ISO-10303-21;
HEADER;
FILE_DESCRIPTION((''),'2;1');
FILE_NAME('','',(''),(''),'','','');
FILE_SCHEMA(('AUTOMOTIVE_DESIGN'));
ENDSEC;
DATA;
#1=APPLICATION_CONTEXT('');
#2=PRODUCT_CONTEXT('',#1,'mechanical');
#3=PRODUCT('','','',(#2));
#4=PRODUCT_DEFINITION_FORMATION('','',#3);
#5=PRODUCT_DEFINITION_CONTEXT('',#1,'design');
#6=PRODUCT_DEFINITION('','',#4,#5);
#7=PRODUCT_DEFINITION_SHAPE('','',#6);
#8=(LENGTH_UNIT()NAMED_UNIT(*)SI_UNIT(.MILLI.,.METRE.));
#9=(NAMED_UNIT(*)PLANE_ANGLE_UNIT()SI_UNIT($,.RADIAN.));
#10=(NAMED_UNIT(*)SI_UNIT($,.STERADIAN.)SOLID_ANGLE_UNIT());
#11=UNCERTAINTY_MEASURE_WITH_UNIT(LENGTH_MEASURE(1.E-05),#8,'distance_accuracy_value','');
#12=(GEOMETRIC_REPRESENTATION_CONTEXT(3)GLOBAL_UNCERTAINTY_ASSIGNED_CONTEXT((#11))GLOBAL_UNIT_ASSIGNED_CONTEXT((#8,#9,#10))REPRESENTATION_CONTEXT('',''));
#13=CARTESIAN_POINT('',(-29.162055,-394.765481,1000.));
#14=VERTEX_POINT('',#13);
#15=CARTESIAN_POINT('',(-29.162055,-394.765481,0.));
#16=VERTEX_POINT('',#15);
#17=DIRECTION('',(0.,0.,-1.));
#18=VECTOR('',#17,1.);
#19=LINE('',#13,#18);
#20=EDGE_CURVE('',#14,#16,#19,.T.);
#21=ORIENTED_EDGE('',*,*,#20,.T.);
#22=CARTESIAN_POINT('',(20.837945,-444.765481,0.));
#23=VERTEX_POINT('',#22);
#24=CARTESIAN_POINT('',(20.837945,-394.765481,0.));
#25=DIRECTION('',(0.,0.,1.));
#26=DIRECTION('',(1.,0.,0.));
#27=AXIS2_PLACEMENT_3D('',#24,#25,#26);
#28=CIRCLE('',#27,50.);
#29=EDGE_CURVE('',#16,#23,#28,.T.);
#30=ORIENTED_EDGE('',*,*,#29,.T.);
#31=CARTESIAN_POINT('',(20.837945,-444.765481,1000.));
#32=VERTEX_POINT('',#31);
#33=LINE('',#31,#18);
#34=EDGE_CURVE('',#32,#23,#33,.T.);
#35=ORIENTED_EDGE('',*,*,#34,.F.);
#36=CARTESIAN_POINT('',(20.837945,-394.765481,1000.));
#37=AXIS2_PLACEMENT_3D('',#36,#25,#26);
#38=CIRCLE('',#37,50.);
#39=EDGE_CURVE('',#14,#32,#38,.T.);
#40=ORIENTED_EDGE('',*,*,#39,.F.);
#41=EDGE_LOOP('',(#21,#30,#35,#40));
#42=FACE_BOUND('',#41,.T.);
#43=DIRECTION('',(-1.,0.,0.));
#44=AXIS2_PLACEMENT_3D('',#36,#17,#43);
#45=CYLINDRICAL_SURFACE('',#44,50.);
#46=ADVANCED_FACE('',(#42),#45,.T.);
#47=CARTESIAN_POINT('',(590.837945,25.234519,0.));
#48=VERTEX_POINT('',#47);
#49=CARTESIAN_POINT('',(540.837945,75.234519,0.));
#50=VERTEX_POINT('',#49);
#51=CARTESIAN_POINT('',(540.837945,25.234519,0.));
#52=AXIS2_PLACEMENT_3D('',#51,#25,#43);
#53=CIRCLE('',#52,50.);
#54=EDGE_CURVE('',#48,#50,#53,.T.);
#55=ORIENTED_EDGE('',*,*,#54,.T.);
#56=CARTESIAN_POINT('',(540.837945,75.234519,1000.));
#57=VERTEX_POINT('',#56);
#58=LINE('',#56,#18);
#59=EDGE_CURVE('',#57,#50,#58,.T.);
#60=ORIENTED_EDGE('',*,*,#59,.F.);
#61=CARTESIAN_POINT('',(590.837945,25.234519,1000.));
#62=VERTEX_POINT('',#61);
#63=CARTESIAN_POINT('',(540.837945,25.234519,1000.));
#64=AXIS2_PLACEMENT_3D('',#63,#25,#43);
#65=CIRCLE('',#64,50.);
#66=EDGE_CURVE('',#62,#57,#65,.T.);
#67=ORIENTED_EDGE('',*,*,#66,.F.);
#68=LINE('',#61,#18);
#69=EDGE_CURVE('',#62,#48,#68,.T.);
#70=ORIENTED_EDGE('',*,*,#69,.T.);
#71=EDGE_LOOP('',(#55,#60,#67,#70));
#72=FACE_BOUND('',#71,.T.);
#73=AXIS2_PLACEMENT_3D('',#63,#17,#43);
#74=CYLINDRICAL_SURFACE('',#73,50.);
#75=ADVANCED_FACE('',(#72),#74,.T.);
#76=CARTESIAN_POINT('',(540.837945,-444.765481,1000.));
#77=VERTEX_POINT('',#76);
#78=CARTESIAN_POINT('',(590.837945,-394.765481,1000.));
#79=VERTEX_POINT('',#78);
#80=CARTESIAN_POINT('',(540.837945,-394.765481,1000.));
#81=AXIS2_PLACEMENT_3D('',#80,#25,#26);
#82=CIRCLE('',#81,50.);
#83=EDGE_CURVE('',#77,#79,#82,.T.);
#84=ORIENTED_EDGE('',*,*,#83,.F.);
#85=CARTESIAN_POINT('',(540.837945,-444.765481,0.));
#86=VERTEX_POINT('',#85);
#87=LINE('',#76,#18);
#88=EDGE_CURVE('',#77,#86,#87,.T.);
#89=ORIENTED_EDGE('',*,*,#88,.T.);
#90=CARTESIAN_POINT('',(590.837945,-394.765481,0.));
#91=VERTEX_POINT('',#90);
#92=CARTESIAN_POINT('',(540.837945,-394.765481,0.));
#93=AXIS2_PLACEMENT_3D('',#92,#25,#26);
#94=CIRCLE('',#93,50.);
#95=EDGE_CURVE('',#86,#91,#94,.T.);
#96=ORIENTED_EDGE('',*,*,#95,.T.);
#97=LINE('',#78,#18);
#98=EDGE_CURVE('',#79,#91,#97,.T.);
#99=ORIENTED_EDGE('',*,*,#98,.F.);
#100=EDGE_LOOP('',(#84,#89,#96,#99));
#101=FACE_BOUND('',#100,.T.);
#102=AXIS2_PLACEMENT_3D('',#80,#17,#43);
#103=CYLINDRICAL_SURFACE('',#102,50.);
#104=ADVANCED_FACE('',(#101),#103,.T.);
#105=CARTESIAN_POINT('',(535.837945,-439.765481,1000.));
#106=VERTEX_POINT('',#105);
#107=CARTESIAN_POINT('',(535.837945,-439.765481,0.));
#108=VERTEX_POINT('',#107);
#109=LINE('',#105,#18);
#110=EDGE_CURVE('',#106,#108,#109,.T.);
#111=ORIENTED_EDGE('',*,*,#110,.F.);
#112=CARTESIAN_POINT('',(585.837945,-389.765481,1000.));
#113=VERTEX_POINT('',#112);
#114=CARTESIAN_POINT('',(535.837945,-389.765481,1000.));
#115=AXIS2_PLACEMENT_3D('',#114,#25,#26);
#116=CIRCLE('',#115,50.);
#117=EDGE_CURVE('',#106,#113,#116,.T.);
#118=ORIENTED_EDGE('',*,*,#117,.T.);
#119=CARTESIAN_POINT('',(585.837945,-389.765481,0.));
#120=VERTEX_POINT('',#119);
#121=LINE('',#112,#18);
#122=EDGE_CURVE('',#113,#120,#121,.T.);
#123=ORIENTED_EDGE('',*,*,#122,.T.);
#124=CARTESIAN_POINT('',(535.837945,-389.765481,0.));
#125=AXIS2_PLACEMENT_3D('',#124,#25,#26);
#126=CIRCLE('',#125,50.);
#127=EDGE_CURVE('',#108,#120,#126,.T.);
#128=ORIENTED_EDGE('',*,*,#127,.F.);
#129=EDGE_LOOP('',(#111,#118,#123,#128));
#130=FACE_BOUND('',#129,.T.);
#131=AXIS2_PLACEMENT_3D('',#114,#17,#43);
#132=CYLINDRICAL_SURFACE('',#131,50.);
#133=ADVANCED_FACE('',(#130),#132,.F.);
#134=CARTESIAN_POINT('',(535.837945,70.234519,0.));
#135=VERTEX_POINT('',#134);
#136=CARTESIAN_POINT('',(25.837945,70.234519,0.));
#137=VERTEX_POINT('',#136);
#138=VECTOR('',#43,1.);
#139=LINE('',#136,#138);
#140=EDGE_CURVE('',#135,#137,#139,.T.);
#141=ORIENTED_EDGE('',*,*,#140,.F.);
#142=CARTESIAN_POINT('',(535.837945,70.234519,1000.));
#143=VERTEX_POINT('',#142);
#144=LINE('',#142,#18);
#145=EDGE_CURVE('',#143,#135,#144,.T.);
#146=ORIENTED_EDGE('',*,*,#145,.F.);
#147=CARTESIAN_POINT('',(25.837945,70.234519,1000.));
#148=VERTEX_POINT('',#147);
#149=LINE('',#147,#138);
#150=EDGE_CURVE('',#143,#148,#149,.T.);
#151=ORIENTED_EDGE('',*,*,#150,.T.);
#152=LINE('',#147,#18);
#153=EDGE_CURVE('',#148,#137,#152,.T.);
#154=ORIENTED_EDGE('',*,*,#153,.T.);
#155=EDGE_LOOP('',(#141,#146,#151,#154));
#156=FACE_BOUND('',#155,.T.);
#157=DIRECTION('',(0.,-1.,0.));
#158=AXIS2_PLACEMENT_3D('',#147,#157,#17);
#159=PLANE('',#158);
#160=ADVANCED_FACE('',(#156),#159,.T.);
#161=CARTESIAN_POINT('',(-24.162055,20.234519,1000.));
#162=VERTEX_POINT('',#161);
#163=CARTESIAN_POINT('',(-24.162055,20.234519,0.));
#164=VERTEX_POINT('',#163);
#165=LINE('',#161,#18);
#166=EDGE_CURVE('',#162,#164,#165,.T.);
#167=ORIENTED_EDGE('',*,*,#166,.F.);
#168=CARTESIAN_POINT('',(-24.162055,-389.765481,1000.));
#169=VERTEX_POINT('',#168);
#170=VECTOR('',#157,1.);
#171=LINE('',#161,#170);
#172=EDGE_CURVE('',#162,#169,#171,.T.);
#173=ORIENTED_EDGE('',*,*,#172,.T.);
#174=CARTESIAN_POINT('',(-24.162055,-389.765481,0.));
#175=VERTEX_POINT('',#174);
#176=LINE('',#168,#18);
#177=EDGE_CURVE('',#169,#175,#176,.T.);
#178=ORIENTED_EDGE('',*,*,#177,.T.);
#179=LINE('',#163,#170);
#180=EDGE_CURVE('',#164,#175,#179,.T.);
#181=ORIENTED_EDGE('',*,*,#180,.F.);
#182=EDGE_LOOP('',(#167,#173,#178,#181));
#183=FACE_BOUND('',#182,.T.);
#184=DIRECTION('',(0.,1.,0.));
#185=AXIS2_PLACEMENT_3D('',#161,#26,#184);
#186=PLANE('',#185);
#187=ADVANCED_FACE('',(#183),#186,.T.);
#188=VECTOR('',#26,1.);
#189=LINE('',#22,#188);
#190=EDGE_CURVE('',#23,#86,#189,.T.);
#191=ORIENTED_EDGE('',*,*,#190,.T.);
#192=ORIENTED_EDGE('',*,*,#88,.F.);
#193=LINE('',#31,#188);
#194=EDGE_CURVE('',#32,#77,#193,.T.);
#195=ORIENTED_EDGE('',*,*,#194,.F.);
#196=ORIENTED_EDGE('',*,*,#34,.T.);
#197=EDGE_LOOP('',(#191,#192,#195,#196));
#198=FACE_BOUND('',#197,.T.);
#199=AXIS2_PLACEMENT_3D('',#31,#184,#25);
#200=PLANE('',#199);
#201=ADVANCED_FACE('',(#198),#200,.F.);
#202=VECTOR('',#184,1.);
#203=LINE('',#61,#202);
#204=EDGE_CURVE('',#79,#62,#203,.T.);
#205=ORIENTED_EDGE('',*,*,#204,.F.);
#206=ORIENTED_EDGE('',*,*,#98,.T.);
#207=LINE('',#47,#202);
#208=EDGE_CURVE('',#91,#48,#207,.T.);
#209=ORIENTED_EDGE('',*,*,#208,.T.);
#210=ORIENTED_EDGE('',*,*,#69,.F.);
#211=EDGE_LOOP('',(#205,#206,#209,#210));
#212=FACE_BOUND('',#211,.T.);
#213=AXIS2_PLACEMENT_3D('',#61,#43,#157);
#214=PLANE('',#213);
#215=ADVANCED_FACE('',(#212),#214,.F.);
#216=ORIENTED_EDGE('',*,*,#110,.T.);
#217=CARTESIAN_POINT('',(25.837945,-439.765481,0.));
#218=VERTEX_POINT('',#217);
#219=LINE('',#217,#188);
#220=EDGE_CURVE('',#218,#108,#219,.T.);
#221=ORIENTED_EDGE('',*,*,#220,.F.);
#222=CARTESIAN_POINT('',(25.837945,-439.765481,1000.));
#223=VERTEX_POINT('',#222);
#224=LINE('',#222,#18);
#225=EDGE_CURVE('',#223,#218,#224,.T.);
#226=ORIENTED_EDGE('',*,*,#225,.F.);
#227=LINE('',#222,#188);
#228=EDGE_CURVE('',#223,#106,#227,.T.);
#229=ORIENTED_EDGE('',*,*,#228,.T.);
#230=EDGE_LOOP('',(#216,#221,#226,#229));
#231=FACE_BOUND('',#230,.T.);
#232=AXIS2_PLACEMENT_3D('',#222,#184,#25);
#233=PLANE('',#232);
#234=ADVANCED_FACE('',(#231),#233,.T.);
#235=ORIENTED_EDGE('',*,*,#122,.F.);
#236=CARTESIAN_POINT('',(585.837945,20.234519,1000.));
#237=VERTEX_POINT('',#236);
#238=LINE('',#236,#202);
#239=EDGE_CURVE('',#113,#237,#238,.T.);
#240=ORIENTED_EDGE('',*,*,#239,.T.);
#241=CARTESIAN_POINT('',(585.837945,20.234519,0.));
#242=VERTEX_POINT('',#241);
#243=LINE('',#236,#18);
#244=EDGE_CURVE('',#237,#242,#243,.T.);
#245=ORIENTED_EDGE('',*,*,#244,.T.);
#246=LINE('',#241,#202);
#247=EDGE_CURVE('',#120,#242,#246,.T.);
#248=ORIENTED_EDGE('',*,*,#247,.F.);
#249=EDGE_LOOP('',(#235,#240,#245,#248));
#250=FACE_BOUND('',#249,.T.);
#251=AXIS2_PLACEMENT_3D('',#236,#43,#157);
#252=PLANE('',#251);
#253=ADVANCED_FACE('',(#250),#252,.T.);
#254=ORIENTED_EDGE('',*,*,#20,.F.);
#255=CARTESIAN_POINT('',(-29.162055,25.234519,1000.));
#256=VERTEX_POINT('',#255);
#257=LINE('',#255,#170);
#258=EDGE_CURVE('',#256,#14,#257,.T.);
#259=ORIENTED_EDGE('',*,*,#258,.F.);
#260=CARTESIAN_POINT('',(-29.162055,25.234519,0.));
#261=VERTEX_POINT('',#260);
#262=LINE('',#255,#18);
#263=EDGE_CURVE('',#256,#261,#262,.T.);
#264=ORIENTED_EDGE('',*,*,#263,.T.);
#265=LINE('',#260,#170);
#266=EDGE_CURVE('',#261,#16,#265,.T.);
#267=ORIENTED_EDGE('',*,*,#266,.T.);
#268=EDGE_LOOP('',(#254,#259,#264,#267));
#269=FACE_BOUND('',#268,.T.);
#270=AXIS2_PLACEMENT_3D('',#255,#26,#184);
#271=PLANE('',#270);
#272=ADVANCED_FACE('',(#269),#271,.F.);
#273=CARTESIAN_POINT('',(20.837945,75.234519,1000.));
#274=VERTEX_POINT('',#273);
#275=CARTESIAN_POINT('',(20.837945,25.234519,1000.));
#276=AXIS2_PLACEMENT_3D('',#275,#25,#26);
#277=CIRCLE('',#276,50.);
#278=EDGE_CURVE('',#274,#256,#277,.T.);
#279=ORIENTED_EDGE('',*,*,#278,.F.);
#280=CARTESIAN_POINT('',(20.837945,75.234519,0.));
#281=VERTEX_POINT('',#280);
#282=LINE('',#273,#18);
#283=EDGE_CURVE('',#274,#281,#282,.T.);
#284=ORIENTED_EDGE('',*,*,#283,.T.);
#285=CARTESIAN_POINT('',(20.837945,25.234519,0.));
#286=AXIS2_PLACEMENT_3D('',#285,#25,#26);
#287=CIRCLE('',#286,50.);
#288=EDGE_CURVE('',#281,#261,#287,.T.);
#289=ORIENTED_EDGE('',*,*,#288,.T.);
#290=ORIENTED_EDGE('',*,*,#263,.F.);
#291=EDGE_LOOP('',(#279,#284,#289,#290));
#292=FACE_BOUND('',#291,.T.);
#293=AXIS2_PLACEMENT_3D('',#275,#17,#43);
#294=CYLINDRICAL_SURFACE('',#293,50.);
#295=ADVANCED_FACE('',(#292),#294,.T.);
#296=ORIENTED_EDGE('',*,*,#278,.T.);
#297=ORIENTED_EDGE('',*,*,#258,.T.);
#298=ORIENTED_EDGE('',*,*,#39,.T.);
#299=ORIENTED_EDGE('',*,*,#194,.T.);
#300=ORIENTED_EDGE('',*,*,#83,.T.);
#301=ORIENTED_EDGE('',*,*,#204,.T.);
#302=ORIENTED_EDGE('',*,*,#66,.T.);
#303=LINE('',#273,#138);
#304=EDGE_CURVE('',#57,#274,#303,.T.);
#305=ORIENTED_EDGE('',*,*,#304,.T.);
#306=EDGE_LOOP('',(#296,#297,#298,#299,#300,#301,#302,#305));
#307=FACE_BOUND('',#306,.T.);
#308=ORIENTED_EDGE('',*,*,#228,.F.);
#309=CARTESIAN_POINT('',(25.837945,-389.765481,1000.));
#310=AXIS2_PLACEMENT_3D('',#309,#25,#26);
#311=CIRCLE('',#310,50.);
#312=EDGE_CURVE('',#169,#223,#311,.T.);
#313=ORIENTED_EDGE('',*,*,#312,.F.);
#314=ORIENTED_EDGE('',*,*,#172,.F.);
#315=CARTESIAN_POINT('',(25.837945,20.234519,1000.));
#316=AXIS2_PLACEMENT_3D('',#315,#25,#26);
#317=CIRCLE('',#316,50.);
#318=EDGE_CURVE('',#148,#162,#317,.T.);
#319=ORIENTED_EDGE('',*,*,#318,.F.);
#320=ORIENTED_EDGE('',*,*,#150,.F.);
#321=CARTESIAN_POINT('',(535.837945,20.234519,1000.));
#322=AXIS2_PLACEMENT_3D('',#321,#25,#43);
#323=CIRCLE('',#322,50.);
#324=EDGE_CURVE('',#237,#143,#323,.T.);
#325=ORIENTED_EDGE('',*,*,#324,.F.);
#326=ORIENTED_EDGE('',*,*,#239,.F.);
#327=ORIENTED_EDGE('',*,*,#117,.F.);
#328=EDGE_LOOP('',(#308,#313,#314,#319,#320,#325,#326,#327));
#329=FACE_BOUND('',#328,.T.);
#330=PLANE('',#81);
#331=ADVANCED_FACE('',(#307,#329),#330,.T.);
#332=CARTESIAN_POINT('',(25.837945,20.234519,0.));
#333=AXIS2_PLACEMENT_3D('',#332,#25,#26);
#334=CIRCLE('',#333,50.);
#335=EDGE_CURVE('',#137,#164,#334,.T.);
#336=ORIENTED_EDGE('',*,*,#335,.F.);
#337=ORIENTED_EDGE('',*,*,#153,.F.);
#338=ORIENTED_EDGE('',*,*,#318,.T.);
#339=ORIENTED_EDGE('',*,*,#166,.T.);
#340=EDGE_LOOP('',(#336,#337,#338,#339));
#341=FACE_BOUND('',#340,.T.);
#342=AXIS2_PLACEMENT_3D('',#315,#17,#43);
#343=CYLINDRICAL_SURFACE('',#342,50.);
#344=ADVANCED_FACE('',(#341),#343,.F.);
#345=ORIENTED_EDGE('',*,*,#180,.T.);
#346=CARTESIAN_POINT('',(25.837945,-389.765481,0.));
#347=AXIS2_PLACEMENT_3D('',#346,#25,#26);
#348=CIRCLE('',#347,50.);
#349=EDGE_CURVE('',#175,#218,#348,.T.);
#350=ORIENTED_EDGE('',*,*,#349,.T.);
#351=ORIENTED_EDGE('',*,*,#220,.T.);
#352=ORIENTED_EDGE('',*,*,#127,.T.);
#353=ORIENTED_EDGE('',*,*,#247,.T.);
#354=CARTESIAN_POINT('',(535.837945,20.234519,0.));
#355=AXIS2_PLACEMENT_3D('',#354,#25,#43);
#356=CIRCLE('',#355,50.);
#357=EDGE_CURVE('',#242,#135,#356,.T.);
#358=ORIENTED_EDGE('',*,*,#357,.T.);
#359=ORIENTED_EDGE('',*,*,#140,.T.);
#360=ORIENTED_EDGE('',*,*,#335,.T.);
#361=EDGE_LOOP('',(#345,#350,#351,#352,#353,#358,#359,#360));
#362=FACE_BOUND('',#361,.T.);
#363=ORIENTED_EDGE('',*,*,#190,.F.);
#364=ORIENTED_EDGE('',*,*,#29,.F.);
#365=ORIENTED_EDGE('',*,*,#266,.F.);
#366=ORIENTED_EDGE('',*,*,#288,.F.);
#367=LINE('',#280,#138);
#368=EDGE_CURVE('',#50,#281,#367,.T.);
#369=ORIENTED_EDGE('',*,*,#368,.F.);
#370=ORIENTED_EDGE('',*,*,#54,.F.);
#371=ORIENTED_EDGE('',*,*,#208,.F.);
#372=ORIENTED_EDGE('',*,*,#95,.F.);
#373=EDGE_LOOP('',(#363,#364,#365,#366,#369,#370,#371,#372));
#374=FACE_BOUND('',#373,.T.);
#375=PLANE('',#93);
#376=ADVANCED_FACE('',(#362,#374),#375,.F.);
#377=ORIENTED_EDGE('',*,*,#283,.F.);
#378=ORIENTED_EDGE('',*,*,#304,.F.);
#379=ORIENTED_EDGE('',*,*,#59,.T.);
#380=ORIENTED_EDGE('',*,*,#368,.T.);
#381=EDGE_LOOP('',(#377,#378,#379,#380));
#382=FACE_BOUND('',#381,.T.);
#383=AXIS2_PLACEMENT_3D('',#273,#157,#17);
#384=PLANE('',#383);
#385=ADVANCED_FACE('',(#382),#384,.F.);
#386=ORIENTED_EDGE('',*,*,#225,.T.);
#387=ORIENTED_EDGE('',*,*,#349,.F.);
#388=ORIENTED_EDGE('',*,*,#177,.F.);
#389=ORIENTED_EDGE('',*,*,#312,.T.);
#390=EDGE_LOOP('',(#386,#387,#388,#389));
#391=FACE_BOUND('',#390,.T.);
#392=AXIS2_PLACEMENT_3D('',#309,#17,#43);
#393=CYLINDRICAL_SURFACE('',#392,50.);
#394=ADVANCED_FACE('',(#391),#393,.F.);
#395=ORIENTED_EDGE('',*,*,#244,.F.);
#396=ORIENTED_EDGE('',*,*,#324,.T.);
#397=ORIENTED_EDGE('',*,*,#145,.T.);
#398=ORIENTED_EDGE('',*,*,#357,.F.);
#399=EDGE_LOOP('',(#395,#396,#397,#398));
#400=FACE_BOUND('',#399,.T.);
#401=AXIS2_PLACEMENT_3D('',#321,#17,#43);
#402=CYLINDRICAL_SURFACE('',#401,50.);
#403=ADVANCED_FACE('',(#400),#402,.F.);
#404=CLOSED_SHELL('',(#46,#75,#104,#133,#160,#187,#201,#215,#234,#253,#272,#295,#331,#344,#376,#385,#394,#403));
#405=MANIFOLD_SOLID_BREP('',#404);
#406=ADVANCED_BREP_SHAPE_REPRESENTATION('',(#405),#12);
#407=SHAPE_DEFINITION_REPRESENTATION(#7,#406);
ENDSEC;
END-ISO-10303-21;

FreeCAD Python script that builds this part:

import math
import FreeCAD as App
import Part
import Sketcher

V = App.Vector
Q = App.Units.Quantity

doc = App.newDocument("Part")
body = doc.addObject("PartDesign::Body", "Body")

# Sketch on XY plane
sketch1 = body.newObject("Sketcher::SketchObject", "Sketch")
sketch1.AttachmentSupport = (doc.getObject("XY_Plane"), [""])
sketch1.MapMode = "FlatFace"
sketch1.addGeometry(Part.LineSegment(V(541, 75, 0), V(21, 75, 0)), False)
sketch1.addGeometry(Part.ArcOfCircle(Part.Circle(V(21, 25, 0), V(0, 0, 1), 50), math.radians(90), math.radians(180)), False)
sketch1.addGeometry(Part.LineSegment(V(-29, 25, 0), V(-29, -395, 0)), False)
sketch1.addGeometry(Part.ArcOfCircle(Part.Circle(V(21, -395, 0), V(0, 0, 1), 50), math.radians(-180), math.radians(-90)), False)
sketch1.addGeometry(Part.LineSegment(V(21, -445, 0), V(541, -445, 0)), False)
sketch1.addGeometry(Part.ArcOfCircle(Part.Circle(V(541, -395, 0), V(0, 0, 1), 50), math.radians(-90), math.radians(0)), False)
sketch1.addGeometry(Part.LineSegment(V(591, -395, 0), V(591, 25, 0)), False)
sketch1.addGeometry(Part.ArcOfCircle(Part.Circle(V(541, 25, 0), V(0, 0, 1), 50), math.radians(0), math.radians(90)), False)
sketch1.addGeometry(Part.LineSegment(V(26, 70, 0), V(536, 70, 0)), False)
sketch1.addGeometry(Part.ArcOfCircle(Part.Circle(V(536, 20, 0), V(0, 0, 1), 50), math.radians(0), math.radians(90)), False)
sketch1.addGeometry(Part.LineSegment(V(586, 20, 0), V(586, -390, 0)), False)
sketch1.addGeometry(Part.ArcOfCircle(Part.Circle(V(536, -390, 0), V(0, 0, 1), 50), math.radians(-90), math.radians(0)), False)
sketch1.addGeometry(Part.LineSegment(V(536, -440, 0), V(26, -440, 0)), False)
sketch1.addGeometry(Part.ArcOfCircle(Part.Circle(V(26, -390, 0), V(0, 0, 1), 50), math.radians(-180), math.radians(-90)), False)
sketch1.addGeometry(Part.LineSegment(V(-24, -390, 0), V(-24, 20, 0)), False)
sketch1.addGeometry(Part.ArcOfCircle(Part.Circle(V(26, 20, 0), V(0, 0, 1), 50), math.radians(90), math.radians(180)), False)
sketch1.addConstraint(Sketcher.Constraint("Tangent", 0, 2, 1, 1))
sketch1.addConstraint(Sketcher.Constraint("Tangent", 1, 2, 2, 1))
sketch1.addConstraint(Sketcher.Constraint("Tangent", 2, 2, 3, 1))
sketch1.addConstraint(Sketcher.Constraint("Tangent", 3, 2, 4, 1))
sketch1.addConstraint(Sketcher.Constraint("Tangent", 4, 2, 5, 1))
sketch1.addConstraint(Sketcher.Constraint("Tangent", 5, 2, 6, 1))
sketch1.addConstraint(Sketcher.Constraint("Tangent", 6, 2, 7, 1))
sketch1.addConstraint(Sketcher.Constraint("Tangent", 7, 2, 0, 1))
sketch1.addConstraint(Sketcher.Constraint("Tangent", 8, 2, 9, 2))
sketch1.addConstraint(Sketcher.Constraint("Tangent", 9, 1, 10, 1))
sketch1.addConstraint(Sketcher.Constraint("Tangent", 10, 2, 11, 2))
sketch1.addConstraint(Sketcher.Constraint("Tangent", 11, 1, 12, 1))
sketch1.addConstraint(Sketcher.Constraint("Tangent", 12, 2, 13, 2))
sketch1.addConstraint(Sketcher.Constraint("Tangent", 13, 1, 14, 1))
sketch1.addConstraint(Sketcher.Constraint("Tangent", 14, 2, 15, 2))
sketch1.addConstraint(Sketcher.Constraint("Tangent", 15, 1, 8, 1))
sketch1.addConstraint(Sketcher.Constraint("Horizontal", 0))
sketch1.addConstraint(Sketcher.Constraint("Vertical", 2))
sketch1.addConstraint(Sketcher.Constraint("Horizontal", 4))
sketch1.addConstraint(Sketcher.Constraint("Vertical", 6))
sketch1.addConstraint(Sketcher.Constraint("Horizontal", 8))
sketch1.addConstraint(Sketcher.Constraint("Vertical", 10))
sketch1.addConstraint(Sketcher.Constraint("Horizontal", 12))
sketch1.addConstraint(Sketcher.Constraint("Vertical", 14))
sketch1.addConstraint(Sketcher.Constraint("Equal", 1, 3))
sketch1.addConstraint(Sketcher.Constraint("Equal", 3, 5))
sketch1.addConstraint(Sketcher.Constraint("Equal", 5, 7))
sketch1.addConstraint(Sketcher.Constraint("Equal", 7, 9))
sketch1.addConstraint(Sketcher.Constraint("Equal", 9, 11))
sketch1.addConstraint(Sketcher.Constraint("Equal", 11, 13))
sketch1.addConstraint(Sketcher.Constraint("Equal", 13, 15))
sketch1.addConstraint(Sketcher.Constraint("Radius", 1, Q("50 mm")))
sketch1.addConstraint(Sketcher.Constraint("DistanceX", 0, 2, 0, 1, Q("520 mm")))
sketch1.addConstraint(Sketcher.Constraint("DistanceX", 8, 1, 8, 2, Q("510 mm")))
sketch1.addConstraint(Sketcher.Constraint("DistanceY", 2, 2, 2, 1, Q("420 mm")))
sketch1.addConstraint(Sketcher.Constraint("DistanceY", 10, 2, 10, 1, Q("410 mm")))
sketch1.addConstraint(Sketcher.Constraint("DistanceX", 9, 3, 7, 3, Q("5 mm")))
sketch1.addConstraint(Sketcher.Constraint("DistanceY", 9, 3, 7, 3, Q("5 mm")))
sketch1.addConstraint(Sketcher.Constraint("DistanceY", -1, 1, 1, 3, Q("25.234519 mm")))
sketch1.addConstraint(Sketcher.Constraint("DistanceX", -1, 1, 1, 3, Q("20.837945 mm")))
pad1 = body.newObject("PartDesign::Pad", "Pad")
pad1.Profile = sketch1
pad1.Length = 1000

doc.recompute()
